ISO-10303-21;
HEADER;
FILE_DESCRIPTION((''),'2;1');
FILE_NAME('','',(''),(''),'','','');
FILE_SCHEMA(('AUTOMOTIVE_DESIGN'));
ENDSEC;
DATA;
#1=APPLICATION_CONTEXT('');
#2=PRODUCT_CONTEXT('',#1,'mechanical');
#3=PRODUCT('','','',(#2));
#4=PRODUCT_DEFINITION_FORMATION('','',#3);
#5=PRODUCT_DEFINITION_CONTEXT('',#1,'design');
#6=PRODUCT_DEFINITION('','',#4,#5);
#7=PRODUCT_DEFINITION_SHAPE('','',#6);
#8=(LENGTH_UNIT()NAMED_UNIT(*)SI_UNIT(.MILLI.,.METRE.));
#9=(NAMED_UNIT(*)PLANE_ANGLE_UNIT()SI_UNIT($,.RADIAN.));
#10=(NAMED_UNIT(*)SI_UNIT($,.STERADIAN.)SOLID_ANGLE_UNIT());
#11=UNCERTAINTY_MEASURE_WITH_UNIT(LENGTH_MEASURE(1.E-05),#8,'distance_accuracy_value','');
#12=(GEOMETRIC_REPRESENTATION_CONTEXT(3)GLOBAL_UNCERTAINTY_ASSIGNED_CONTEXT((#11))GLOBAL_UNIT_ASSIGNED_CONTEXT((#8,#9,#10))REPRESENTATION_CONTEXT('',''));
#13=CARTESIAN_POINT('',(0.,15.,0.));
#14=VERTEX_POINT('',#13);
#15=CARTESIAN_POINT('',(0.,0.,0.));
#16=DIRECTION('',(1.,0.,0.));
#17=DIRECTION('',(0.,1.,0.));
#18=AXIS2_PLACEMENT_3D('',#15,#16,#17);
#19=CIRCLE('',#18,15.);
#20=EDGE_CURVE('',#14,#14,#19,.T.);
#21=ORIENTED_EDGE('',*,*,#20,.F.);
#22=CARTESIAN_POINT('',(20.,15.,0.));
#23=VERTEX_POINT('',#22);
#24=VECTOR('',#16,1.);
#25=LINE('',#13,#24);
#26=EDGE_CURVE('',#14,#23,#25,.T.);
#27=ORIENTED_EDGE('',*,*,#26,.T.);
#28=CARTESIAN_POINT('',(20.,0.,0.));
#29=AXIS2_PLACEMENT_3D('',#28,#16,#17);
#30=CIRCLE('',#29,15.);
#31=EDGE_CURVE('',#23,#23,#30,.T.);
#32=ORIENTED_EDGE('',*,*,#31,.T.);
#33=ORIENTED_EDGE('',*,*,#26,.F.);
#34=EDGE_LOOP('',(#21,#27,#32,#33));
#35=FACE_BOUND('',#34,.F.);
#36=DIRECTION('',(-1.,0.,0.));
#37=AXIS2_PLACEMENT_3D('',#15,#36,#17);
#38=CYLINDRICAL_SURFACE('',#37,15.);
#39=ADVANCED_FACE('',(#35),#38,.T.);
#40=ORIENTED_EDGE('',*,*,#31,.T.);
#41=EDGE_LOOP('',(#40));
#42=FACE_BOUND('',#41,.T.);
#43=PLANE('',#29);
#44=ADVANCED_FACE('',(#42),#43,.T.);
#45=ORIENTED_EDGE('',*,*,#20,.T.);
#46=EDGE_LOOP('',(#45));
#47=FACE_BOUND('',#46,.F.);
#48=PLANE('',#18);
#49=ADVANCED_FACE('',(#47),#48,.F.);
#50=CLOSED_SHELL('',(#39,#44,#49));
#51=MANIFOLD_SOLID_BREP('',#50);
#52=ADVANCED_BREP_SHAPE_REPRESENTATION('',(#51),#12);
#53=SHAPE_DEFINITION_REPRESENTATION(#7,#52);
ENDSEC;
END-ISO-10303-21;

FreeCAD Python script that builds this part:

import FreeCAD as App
import Part
import Sketcher

doc = App.newDocument("Part")
params = doc.addObject("Spreadsheet::Sheet", "Params")
for row, (alias, value) in enumerate([
    ("sketch1_diameter", "30 mm"),
    ("pad1_length", "20 mm"),
], start=1):
    params.set(f"A{row}", alias)
    params.set(f"B{row}", "=" + value)
    params.setAlias(f"B{row}", alias)

body = doc.addObject("PartDesign::Body", "Body")

# Sketch on YZ plane
sketch1 = body.newObject("Sketcher::SketchObject", "Sketch")
sketch1.AttachmentSupport = (doc.getObject("YZ_Plane"), [""])
sketch1.MapMode = "FlatFace"
sketch1.addGeometry(Part.Circle(App.Vector(0, 0, 0), App.Vector(0, 0, 1), 15), False)
sketch1.addConstraint([
    Sketcher.Constraint("Coincident", 0, 3, -1, 1),
    Sketcher.Constraint("Diameter", 0, 30.0),
])
sketch1.setExpression("Constraints[1]", "Params.sketch1_diameter")
pad1 = body.newObject("PartDesign::Pad", "Pad")
pad1.Profile = sketch1
pad1.setExpression("Length", "Params.pad1_length")

doc.recompute()
